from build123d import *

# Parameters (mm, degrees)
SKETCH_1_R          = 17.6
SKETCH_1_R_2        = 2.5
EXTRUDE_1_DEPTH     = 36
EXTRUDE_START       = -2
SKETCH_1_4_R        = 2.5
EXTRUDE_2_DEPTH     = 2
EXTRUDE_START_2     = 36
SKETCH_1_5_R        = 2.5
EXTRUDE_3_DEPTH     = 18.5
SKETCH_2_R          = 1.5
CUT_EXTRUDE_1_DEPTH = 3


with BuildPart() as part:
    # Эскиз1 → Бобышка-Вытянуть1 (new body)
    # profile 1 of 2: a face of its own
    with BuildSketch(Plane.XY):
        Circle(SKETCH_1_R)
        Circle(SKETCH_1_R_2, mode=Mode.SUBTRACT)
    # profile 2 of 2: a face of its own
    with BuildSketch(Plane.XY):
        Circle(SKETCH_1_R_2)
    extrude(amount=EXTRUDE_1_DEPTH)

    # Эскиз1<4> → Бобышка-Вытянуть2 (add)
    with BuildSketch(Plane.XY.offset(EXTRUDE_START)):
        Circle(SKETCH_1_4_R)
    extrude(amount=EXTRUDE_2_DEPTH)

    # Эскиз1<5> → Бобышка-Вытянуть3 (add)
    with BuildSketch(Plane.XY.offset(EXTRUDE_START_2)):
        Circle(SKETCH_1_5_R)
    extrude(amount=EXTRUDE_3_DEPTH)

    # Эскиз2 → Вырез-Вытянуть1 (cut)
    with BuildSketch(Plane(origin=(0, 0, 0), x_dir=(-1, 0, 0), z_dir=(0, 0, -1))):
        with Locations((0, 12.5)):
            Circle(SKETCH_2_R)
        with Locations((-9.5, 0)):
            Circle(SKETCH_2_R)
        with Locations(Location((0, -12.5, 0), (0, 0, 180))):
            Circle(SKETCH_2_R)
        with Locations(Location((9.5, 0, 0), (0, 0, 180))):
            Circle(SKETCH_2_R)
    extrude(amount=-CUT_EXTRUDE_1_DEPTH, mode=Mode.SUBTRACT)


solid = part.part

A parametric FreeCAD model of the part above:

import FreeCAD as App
import Part
import Sketcher
Q = App.Units.Quantity

doc = App.newDocument("Part")
body = doc.addObject("PartDesign::Body", "Body")

sketch1 = body.newObject("Sketcher::SketchObject", "Sketch")
sketch1.AttachmentSupport = (doc.getObject("XY_Plane"), [""])
sketch1.MapMode = "FlatFace"
sketch1.addGeometry(Part.Circle(App.Vector(0, 0, 0), App.Vector(0, 0, 1), 18), False)
sketch1.addConstraint([
    Sketcher.Constraint("Coincident", 0, 3, -1, 1),
    Sketcher.Constraint("Diameter", 0, Q("35.2 mm")),
])
pad1 = body.newObject("PartDesign::Pad", "Pad")
pad1.Profile = sketch1
pad1.Length = 36

sketch2 = body.newObject("Sketcher::SketchObject", "Sketch001")
sketch2.AttachmentSupport = (doc.getObject("XY_Plane"), [""])
sketch2.MapMode = "FlatFace"
sketch2.AttachmentOffset = App.Placement(App.Vector(0, 0, -2), App.Rotation())
sketch2.addGeometry(Part.Circle(App.Vector(0, 0, 0), App.Vector(0, 0, 1), 2.5), False)
sketch2.addConstraint([
    Sketcher.Constraint("Coincident", 0, 3, -1, 1),
    Sketcher.Constraint("Diameter", 0, Q("5 mm")),
])
pad2 = body.newObject("PartDesign::Pad", "Pad001")
pad2.Profile = sketch2
pad2.Length = 2

sketch3 = body.newObject("Sketcher::SketchObject", "Sketch002")
sketch3.AttachmentSupport = (doc.getObject("XY_Plane"), [""])
sketch3.MapMode = "FlatFace"
sketch3.AttachmentOffset = App.Placement(App.Vector(0, 0, 36), App.Rotation())
sketch3.addGeometry(Part.Circle(App.Vector(0, 0, 0), App.Vector(0, 0, 1), 2.5), False)
sketch3.addConstraint([
    Sketcher.Constraint("Coincident", 0, 3, -1, 1),
    Sketcher.Constraint("Diameter", 0, Q("5 mm")),
])
pad3 = body.newObject("PartDesign::Pad", "Pad002")
pad3.Profile = sketch3
pad3.Length = 18.5

sketch4 = body.newObject("Sketcher::SketchObject", "Sketch003")
sketch4.AttachmentSupport = (doc.getObject("XY_Plane"), [""])
sketch4.MapMode = "FlatFace"
sketch4.addGeometry([
    Part.Circle(App.Vector(0, 12.5, 0), App.Vector(0, 0, 1), 1.5),
    Part.Circle(App.Vector(9.5, 0, 0), App.Vector(0, 0, 1), 1.5),
    Part.Circle(App.Vector(0, -12.5, 0), App.Vector(0, 0, 1), 1.5),
    Part.Circle(App.Vector(-9.5, 0, 0), App.Vector(0, 0, 1), 1.5),
], False)
sketch4.addConstraint([
    Sketcher.Constraint("Equal", 0, 1),
    Sketcher.Constraint("Equal", 1, 2),
    Sketcher.Constraint("Equal", 2, 3),
    Sketcher.Constraint("Symmetric", 0, 3, 2, 3, -1, 1),
    Sketcher.Constraint("Symmetric", 1, 3, 3, 3, -1, 1),
    Sketcher.Constraint("PointOnObject", 0, 3, -2),
    Sketcher.Constraint("PointOnObject", 1, 3, -1),
    Sketcher.Constraint("Diameter", 0, Q("3 mm")),
    Sketcher.Constraint("DistanceY", 2, 3, 0, 3, Q("25 mm")),
    Sketcher.Constraint("DistanceX", 3, 3, 1, 3, Q("19 mm")),
])
pocket1 = body.newObject("PartDesign::Pocket", "Pocket")
pocket1.Profile = sketch4
pocket1.Length = 3
pocket1.Reversed = True

doc.recompute()
